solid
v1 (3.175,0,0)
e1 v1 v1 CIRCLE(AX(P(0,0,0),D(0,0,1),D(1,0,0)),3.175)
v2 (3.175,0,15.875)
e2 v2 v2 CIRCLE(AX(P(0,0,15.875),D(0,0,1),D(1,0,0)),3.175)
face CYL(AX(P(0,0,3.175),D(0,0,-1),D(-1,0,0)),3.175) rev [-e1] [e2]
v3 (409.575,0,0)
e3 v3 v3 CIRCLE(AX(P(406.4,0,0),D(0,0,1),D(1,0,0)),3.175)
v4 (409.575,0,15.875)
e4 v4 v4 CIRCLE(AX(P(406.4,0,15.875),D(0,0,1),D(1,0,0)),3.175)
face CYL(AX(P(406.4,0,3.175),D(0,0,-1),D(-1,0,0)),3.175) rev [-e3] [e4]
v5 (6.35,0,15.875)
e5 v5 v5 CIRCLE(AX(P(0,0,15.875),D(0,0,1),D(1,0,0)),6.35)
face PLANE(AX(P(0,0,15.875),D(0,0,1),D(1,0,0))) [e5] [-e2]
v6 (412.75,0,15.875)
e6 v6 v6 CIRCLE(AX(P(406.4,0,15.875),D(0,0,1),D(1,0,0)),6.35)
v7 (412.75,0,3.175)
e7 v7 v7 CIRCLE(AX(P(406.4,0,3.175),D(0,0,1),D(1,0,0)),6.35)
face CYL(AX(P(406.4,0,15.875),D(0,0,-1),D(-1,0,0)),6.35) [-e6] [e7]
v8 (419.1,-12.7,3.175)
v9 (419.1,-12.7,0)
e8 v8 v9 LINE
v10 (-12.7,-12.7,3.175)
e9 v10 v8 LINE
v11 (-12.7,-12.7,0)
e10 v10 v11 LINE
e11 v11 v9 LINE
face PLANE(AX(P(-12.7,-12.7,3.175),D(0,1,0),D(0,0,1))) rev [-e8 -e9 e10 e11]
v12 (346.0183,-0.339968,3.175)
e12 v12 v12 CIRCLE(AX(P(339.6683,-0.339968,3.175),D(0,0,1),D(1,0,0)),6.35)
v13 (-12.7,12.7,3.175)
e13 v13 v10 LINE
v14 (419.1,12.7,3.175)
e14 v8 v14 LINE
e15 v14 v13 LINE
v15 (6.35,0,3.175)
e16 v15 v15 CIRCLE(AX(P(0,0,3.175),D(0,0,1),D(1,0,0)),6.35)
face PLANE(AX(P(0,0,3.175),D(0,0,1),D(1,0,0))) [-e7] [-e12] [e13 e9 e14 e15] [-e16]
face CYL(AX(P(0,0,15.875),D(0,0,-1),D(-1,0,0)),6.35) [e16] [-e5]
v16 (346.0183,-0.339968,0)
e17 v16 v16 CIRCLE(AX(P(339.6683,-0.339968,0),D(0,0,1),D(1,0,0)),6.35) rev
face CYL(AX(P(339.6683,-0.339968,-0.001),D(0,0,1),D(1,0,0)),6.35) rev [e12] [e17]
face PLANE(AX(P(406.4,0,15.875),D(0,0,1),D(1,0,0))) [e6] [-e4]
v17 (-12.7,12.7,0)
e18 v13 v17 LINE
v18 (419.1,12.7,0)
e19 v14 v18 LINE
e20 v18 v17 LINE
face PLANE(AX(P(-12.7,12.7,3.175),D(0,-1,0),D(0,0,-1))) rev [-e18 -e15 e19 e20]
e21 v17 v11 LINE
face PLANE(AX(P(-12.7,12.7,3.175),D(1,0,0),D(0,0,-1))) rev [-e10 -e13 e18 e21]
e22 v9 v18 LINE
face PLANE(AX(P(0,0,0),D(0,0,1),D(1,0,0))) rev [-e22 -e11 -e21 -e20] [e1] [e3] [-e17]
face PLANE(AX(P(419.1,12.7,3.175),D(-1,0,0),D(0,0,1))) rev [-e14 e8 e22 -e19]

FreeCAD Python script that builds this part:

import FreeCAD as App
import Part
import Sketcher

V = App.Vector
Q = App.Units.Quantity


def add_polygon(sketch, points):
    """Adds a closed chain of lines whose ends are joined by coincident constraints."""
    first, n = sketch.GeometryCount, len(points)
    for a, b in zip(points, points[1:] + points[:1]):
        sketch.addGeometry(Part.LineSegment(App.Vector(*a, 0), App.Vector(*b, 0)), False)
    for i in range(n):
        sketch.addConstraint(Sketcher.Constraint("Coincident", first + i, 2, first + (i + 1) % n, 1))

doc = App.newDocument("Part")
body = doc.addObject("PartDesign::Body", "Body")

sketch1 = body.newObject("Sketcher::SketchObject", "Sketch")
sketch1.AttachmentSupport = (doc.getObject("XY_Plane"), [""])
sketch1.MapMode = "FlatFace"
add_polygon(sketch1, [(-12.7, 12.7), (-12.7, -12.7), (419.1, -12.7), (419.1, 12.7)])
sketch1.addGeometry(Part.Circle(V(0, 0, 0), V(0, 0, 1), 3.2), False)
sketch1.addGeometry(Part.Circle(V(406.4, 0, 0), V(0, 0, 1), 3.2), False)
sketch1.addConstraint(Sketcher.Constraint("Vertical", 0))
sketch1.addConstraint(Sketcher.Constraint("Horizontal", 1))
sketch1.addConstraint(Sketcher.Constraint("Vertical", 2))
sketch1.addConstraint(Sketcher.Constraint("Horizontal", 3))
sketch1.addConstraint(Sketcher.Constraint("Coincident", 4, 3, -1, 1))
sketch1.addConstraint(Sketcher.Constraint("Equal", 4, 5))
sketch1.addConstraint(Sketcher.Constraint("PointOnObject", 5, 3, -1))
sketch1.addConstraint(Sketcher.Constraint("Diameter", 4, Q("0.25 in")))
sketch1.addConstraint(Sketcher.Constraint("DistanceX", 1, 1, 1, 2, Q("17 in")))
sketch1.addConstraint(Sketcher.Constraint("DistanceY", 0, 2, 0, 1, Q("1 in")))
sketch1.addConstraint(Sketcher.Constraint("DistanceX", -1, 1, 5, 3, Q("16 in")))
sketch1.addConstraint(Sketcher.Constraint("DistanceX", 0, 2, -1, 1, Q("0.5 in")))
sketch1.addConstraint(Sketcher.Constraint("DistanceY", 0, 2, -1, 1, Q("0.5 in")))
pad1 = body.newObject("PartDesign::Pad", "Pad")
pad1.Profile = sketch1
pad1.Length = Q("0.125 in")

sketch2 = body.newObject("Sketcher::SketchObject", "Sketch001")
sketch2.AttachmentSupport = (doc.getObject("XY_Plane"), [""])
sketch2.MapMode = "FlatFace"
sketch2.AttachmentOffset = App.Placement(V(0, 0, 0.125 * 25.4), App.Rotation())
sketch2.addGeometry(Part.Circle(V(0, 0, 0), V(0, 0, 1), 6.3), False)
sketch2.addGeometry(Part.Circle(V(0, 0, 0), V(0, 0, 1), 3.2), False)
sketch2.addGeometry(Part.Circle(V(406.4, 0, 0), V(0, 0, 1), 6.3), False)
sketch2.addGeometry(Part.Circle(V(406.4, 0, 0), V(0, 0, 1), 3.2), False)
sketch2.addConstraint(Sketcher.Constraint("Coincident", 0, 3, -1, 1))
sketch2.addConstraint(Sketcher.Constraint("Coincident", 1, 3, -1, 1))
sketch2.addConstraint(Sketcher.Constraint("Coincident", 3, 3, 2, 3))
sketch2.addConstraint(Sketcher.Constraint("Equal", 0, 2))
sketch2.addConstraint(Sketcher.Constraint("Equal", 1, 3))
sketch2.addConstraint(Sketcher.Constraint("PointOnObject", 2, 3, -1))
sketch2.addConstraint(Sketcher.Constraint("Diameter", 0, Q("0.5 in")))
sketch2.addConstraint(Sketcher.Constraint("Diameter", 1, Q("0.25 in")))
sketch2.addConstraint(Sketcher.Constraint("DistanceX", -1, 1, 2, 3, Q("16 in")))
pad2 = body.newObject("PartDesign::Pad", "Pad001")
pad2.Profile = sketch2
pad2.Length = Q("0.5 in")

sketch3 = body.newObject("Sketcher::SketchObject", "Sketch002")
sketch3.AttachmentSupport = (doc.getObject("XY_Plane"), [""])
sketch3.MapMode = "FlatFace"
sketch3.AttachmentOffset = App.Placement(V(0, 0, 0.125 * 25.4), App.Rotation())
sketch3.addGeometry(Part.Circle(V(340, 0, 0), V(0, 0, 1), 6), False)
sketch3.addConstraint(Sketcher.Constraint("Diameter", 0, Q("0.5 in")))
sketch3.addConstraint(Sketcher.Constraint("DistanceX", -1, 1, 0, 3, Q("339.6683 mm")))
sketch3.addConstraint(Sketcher.Constraint("DistanceY", 0, 3, -1, 1, Q("0.339968 mm")))
pocket1 = body.newObject("PartDesign::Pocket", "Pocket")
pocket1.Profile = sketch3
pocket1.Type = "UpToFirst"

doc.recompute()
